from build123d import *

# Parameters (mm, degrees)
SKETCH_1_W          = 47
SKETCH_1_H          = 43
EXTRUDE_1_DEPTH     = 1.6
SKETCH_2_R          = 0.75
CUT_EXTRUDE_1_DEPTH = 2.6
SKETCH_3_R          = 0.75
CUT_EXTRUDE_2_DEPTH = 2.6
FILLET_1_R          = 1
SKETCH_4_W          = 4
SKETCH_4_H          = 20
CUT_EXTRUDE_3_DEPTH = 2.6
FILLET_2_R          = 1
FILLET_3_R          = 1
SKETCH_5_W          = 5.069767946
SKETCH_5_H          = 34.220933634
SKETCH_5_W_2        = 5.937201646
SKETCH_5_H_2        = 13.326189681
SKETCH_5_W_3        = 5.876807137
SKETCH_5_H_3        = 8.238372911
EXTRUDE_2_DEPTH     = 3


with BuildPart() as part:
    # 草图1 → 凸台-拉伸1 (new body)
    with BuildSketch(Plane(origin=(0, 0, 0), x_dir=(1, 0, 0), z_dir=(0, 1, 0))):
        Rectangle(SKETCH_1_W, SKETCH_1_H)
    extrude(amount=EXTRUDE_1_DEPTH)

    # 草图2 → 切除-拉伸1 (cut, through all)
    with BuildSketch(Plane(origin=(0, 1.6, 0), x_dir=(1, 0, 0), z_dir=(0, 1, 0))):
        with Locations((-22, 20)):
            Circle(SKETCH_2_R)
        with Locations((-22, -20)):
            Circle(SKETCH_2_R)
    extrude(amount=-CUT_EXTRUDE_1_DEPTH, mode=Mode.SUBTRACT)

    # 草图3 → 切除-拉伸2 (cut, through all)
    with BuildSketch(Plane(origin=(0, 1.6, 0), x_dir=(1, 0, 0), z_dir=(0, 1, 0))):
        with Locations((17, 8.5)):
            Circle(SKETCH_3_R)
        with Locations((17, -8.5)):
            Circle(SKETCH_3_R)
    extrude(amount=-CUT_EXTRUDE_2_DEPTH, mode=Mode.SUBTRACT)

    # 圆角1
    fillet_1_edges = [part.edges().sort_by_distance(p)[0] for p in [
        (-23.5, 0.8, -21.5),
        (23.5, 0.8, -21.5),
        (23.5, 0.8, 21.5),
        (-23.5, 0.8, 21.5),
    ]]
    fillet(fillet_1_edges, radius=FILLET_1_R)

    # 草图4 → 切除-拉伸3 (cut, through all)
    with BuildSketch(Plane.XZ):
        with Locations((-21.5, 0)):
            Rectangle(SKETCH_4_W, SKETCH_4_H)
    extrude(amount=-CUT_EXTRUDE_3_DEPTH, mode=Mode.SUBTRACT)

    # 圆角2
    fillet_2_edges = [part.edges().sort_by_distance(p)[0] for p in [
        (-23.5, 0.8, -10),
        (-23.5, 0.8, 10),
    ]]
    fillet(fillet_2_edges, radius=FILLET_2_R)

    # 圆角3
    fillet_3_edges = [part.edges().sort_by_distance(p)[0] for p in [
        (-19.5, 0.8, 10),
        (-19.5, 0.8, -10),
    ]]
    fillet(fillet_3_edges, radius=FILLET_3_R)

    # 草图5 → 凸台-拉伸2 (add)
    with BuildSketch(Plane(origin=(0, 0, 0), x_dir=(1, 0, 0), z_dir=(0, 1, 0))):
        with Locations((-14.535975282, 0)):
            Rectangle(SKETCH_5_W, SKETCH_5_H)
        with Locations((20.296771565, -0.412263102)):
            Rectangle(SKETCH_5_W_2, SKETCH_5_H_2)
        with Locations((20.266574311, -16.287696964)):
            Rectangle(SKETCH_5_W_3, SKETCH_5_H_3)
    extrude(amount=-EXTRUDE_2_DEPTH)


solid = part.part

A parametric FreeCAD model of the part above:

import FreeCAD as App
import Part
import Sketcher

V = App.Vector
Q = App.Units.Quantity


def edges_at(feature, points):
    """Names of the edges that pass closest to the given points."""
    edges = feature.Shape.Edges
    near = lambda p: min(range(len(edges)), key=lambda i: edges[i].distToShape(Part.Vertex(*p))[0])
    return sorted({f"Edge{near(p) + 1}" for p in points})

doc = App.newDocument("Part")
body = doc.addObject("PartDesign::Body", "Body")

sketch1 = doc.addObject("Sketcher::SketchObject", "Sketch")
body.addObject(sketch1)
sketch1.AttachmentSupport = (doc.XZ_Plane, [""])
sketch1.MapMode = "FlatFace"
sketch1.addGeometry([
    Part.LineSegment(V(-23.5, -21.5, 0), V(-23.5, 21.5, 0)),
    Part.LineSegment(V(-23.5, 21.5, 0), V(23.5, 21.5, 0)),
    Part.LineSegment(V(23.5, 21.5, 0), V(23.5, -21.5, 0)),
    Part.LineSegment(V(23.5, -21.5, 0), V(-23.5, -21.5, 0)),
], False)
sketch1.addConstraint([
    Sketcher.Constraint("Coincident", 0, 2, 1, 1),
    Sketcher.Constraint("Coincident", 1, 2, 2, 1),
    Sketcher.Constraint("Coincident", 2, 2, 3, 1),
    Sketcher.Constraint("Coincident", 3, 2, 0, 1),
    Sketcher.Constraint("Vertical", 0),
    Sketcher.Constraint("Horizontal", 1),
    Sketcher.Constraint("Vertical", 2),
    Sketcher.Constraint("Horizontal", 3),
    Sketcher.Constraint("Symmetric", 0, 2, 2, 2, -1, 1),
    Sketcher.Constraint("DistanceX", 1, 1, 1, 2, Q("47 mm")),
    Sketcher.Constraint("DistanceY", 0, 1, 0, 2, Q("43 mm")),
])
pad1 = doc.addObject("PartDesign::Pad", "Pad")
body.addObject(pad1)
pad1.Profile = sketch1
pad1.Length = 1.6
pad1.Reversed = True

sketch2 = doc.addObject("Sketcher::SketchObject", "Sketch001")
body.addObject(sketch2)
sketch2.AttachmentSupport = (doc.XZ_Plane, [""])
sketch2.MapMode = "FlatFace"
sketch2.AttachmentOffset = App.Placement(V(0, 0, -1.6), App.Rotation())
sketch2.addGeometry([
    Part.Circle(V(-22, -20, 0), V(0, 0, 1), 0.75),
    Part.Circle(V(-22, 20, 0), V(0, 0, 1), 0.75),
], False)
sketch2.addConstraint([
    Sketcher.Constraint("Equal", 0, 1),
    Sketcher.Constraint("Symmetric", 0, 3, 1, 3, -1),
    Sketcher.Constraint("Diameter", 0, Q("1.5 mm")),
    Sketcher.Constraint("DistanceX", 0, 3, -1, 1, Q("22 mm")),
    Sketcher.Constraint("DistanceY", 0, 3, -1, 1, Q("20 mm")),
])
pocket1 = doc.addObject("PartDesign::Pocket", "Pocket")
body.addObject(pocket1)
pocket1.Profile = sketch2
pocket1.Type = "ThroughAll"
pocket1.Reversed = True

sketch3 = doc.addObject("Sketcher::SketchObject", "Sketch002")
body.addObject(sketch3)
sketch3.AttachmentSupport = (doc.XZ_Plane, [""])
sketch3.MapMode = "FlatFace"
sketch3.AttachmentOffset = App.Placement(V(0, 0, -1.6), App.Rotation())
sketch3.addGeometry([
    Part.Circle(V(17, -8.5, 0), V(0, 0, 1), 0.75),
    Part.Circle(V(17, 8.5, 0), V(0, 0, 1), 0.75),
], False)
sketch3.addConstraint([
    Sketcher.Constraint("Equal", 0, 1),
    Sketcher.Constraint("Symmetric", 0, 3, 1, 3, -1),
    Sketcher.Constraint("Diameter", 0, Q("1.5 mm")),
    Sketcher.Constraint("DistanceX", -1, 1, 0, 3, Q("17 mm")),
    Sketcher.Constraint("DistanceY", 0, 3, 1, 3, Q("17 mm")),
])
pocket2 = doc.addObject("PartDesign::Pocket", "Pocket001")
body.addObject(pocket2)
pocket2.Profile = sketch3
pocket2.Type = "ThroughAll"
pocket2.Reversed = True
doc.recompute()

fillet = doc.addObject("PartDesign::Fillet", "Fillet")
body.addObject(fillet)
fillet.Base = (pocket2, edges_at(pocket2, [
    (-23.5, 0.8, -21.5),
    (23.5, 0.8, -21.5),
    (23.5, 0.8, 21.5),
    (-23.5, 0.8, 21.5),
]))
fillet.Radius = 1

sketch4 = doc.addObject("Sketcher::SketchObject", "Sketch003")
body.addObject(sketch4)
sketch4.AttachmentSupport = (doc.XZ_Plane, [""])
sketch4.MapMode = "FlatFace"
sketch4.addGeometry([
    Part.LineSegment(V(-23.5, 10, 0), V(-23.5, -10, 0)),
    Part.LineSegment(V(-23.5, -10, 0), V(-19.5, -10, 0)),
    Part.LineSegment(V(-19.5, -10, 0), V(-19.5, 10, 0)),
    Part.LineSegment(V(-19.5, 10, 0), V(-23.5, 10, 0)),
], False)
sketch4.addConstraint([
    Sketcher.Constraint("Coincident", 0, 2, 1, 1),
    Sketcher.Constraint("Coincident", 1, 2, 2, 1),
    Sketcher.Constraint("Coincident", 2, 2, 3, 1),
    Sketcher.Constraint("Coincident", 3, 2, 0, 1),
    Sketcher.Constraint("Vertical", 0),
    Sketcher.Constraint("Horizontal", 1),
    Sketcher.Constraint("Vertical", 2),
    Sketcher.Constraint("Horizontal", 3),
    Sketcher.Constraint("DistanceX", 1, 1, 1, 2, Q("4 mm")),
    Sketcher.Constraint("DistanceY", 0, 2, 0, 1, Q("20 mm")),
    Sketcher.Constraint("DistanceY", 0, 2, -1, 1, Q("10 mm")),
    Sketcher.Constraint("DistanceX", 0, 2, -1, 1, Q("23.5 mm")),
])
pocket3 = doc.addObject("PartDesign::Pocket", "Pocket002")
body.addObject(pocket3)
pocket3.Profile = sketch4
pocket3.Type = "ThroughAll"
doc.recompute()

fillet2 = doc.addObject("PartDesign::Fillet", "Fillet001")
body.addObject(fillet2)
fillet2.Base = (pocket3, edges_at(pocket3, [(-23.5, 0.8, -10), (-23.5, 0.8, 10)]))
fillet2.Radius = 1
doc.recompute()

fillet3 = doc.addObject("PartDesign::Fillet", "Fillet002")
body.addObject(fillet3)
fillet3.Base = (fillet2, edges_at(fillet2, [(-19.5, 0.8, 10), (-19.5, 0.8, -10)]))
fillet3.Radius = 1

sketch5 = doc.addObject("Sketcher::SketchObject", "Sketch004")
body.addObject(sketch5)
sketch5.AttachmentSupport = (doc.XZ_Plane, [""])
sketch5.MapMode = "FlatFace"
sketch5.addGeometry([
    Part.LineSegment(V(-17.070859, -17.110467, 0), V(-17.070859, 17.110467, 0)),
    Part.LineSegment(V(-17.070859, 17.110467, 0), V(-12.001091, 17.110467, 0)),
    Part.LineSegment(V(-12.001091, 17.110467, 0), V(-12.001091, -17.110467, 0)),
    Part.LineSegment(V(-12.001091, -17.110467, 0), V(-17.070859, -17.110467, 0)),
    Part.LineSegment(V(17.328171, -6.250832, 0), V(17.328171, 7.075358, 0)),
    Part.LineSegment(V(17.328171, 7.075358, 0), V(23.265372, 7.075358, 0)),
    Part.LineSegment(V(23.265372, 7.075358, 0), V(23.265372, -6.250832, 0)),
    Part.LineSegment(V(23.265372, -6.250832, 0), V(17.328171, -6.250832, 0)),
    Part.LineSegment(V(17.328171, 12.168511, 0), V(17.328171, 20.406883, 0)),
    Part.LineSegment(V(17.328171, 20.406883, 0), V(23.204978, 20.406883, 0)),
    Part.LineSegment(V(23.204978, 20.406883, 0), V(23.204978, 12.168511, 0)),
    Part.LineSegment(V(23.204978, 12.168511, 0), V(17.328171, 12.168511, 0)),
], False)
sketch5.addConstraint([
    Sketcher.Constraint("Coincident", 0, 2, 1, 1),
    Sketcher.Constraint("Coincident", 1, 2, 2, 1),
    Sketcher.Constraint("Coincident", 2, 2, 3, 1),
    Sketcher.Constraint("Coincident", 3, 2, 0, 1),
    Sketcher.Constraint("Coincident", 4, 2, 5, 1),
    Sketcher.Constraint("Coincident", 5, 2, 6, 1),
    Sketcher.Constraint("Coincident", 6, 2, 7, 1),
    Sketcher.Constraint("Coincident", 7, 2, 4, 1),
    Sketcher.Constraint("Coincident", 8, 2, 9, 1),
    Sketcher.Constraint("Coincident", 9, 2, 10, 1),
    Sketcher.Constraint("Coincident", 10, 2, 11, 1),
    Sketcher.Constraint("Coincident", 11, 2, 8, 1),
    Sketcher.Constraint("Vertical", 0),
    Sketcher.Constraint("Horizontal", 1),
    Sketcher.Constraint("Vertical", 2),
    Sketcher.Constraint("Horizontal", 3),
    Sketcher.Constraint("Vertical", 4),
    Sketcher.Constraint("Horizontal", 5),
    Sketcher.Constraint("Vertical", 6),
    Sketcher.Constraint("Horizontal", 7),
    Sketcher.Constraint("Vertical", 8),
    Sketcher.Constraint("Horizontal", 9),
    Sketcher.Constraint("Vertical", 10),
    Sketcher.Constraint("Horizontal", 11),
    Sketcher.Constraint("Vertical", 7, 2, 8, 2),
    Sketcher.Constraint("DistanceX", 5, 1, 5, 2, Q("5.937202 mm")),
    Sketcher.Constraint("DistanceY", 4, 1, 4, 2, Q("13.32619 mm")),
    Sketcher.Constraint("DistanceY", 6, 2, 1, 2, Q("23.361299 mm")),
    Sketcher.Constraint("DistanceX", 1, 1, 1, 2, Q("5.069768 mm")),
    Sketcher.Constraint("DistanceX", 9, 1, 9, 2, Q("5.876807 mm")),
    Sketcher.Constraint("DistanceY", 0, 1, 0, 2, Q("34.220934 mm")),
    Sketcher.Constraint("DistanceY", 8, 1, 8, 2, Q("8.238373 mm")),
    Sketcher.Constraint("DistanceX", 0, 2, -1, 1, Q("17.070859 mm")),
    Sketcher.Constraint("DistanceX", -1, 1, 4, 2, Q("17.328171 mm")),
    Sketcher.Constraint("DistanceY", 6, 2, -1, 1, Q("6.250832 mm")),
    Sketcher.Constraint("DistanceY", -1, 1, 10, 2, Q("12.168511 mm")),
])
pad2 = doc.addObject("PartDesign::Pad", "Pad001")
body.addObject(pad2)
pad2.Profile = sketch5
pad2.Length = 3

doc.recompute()
